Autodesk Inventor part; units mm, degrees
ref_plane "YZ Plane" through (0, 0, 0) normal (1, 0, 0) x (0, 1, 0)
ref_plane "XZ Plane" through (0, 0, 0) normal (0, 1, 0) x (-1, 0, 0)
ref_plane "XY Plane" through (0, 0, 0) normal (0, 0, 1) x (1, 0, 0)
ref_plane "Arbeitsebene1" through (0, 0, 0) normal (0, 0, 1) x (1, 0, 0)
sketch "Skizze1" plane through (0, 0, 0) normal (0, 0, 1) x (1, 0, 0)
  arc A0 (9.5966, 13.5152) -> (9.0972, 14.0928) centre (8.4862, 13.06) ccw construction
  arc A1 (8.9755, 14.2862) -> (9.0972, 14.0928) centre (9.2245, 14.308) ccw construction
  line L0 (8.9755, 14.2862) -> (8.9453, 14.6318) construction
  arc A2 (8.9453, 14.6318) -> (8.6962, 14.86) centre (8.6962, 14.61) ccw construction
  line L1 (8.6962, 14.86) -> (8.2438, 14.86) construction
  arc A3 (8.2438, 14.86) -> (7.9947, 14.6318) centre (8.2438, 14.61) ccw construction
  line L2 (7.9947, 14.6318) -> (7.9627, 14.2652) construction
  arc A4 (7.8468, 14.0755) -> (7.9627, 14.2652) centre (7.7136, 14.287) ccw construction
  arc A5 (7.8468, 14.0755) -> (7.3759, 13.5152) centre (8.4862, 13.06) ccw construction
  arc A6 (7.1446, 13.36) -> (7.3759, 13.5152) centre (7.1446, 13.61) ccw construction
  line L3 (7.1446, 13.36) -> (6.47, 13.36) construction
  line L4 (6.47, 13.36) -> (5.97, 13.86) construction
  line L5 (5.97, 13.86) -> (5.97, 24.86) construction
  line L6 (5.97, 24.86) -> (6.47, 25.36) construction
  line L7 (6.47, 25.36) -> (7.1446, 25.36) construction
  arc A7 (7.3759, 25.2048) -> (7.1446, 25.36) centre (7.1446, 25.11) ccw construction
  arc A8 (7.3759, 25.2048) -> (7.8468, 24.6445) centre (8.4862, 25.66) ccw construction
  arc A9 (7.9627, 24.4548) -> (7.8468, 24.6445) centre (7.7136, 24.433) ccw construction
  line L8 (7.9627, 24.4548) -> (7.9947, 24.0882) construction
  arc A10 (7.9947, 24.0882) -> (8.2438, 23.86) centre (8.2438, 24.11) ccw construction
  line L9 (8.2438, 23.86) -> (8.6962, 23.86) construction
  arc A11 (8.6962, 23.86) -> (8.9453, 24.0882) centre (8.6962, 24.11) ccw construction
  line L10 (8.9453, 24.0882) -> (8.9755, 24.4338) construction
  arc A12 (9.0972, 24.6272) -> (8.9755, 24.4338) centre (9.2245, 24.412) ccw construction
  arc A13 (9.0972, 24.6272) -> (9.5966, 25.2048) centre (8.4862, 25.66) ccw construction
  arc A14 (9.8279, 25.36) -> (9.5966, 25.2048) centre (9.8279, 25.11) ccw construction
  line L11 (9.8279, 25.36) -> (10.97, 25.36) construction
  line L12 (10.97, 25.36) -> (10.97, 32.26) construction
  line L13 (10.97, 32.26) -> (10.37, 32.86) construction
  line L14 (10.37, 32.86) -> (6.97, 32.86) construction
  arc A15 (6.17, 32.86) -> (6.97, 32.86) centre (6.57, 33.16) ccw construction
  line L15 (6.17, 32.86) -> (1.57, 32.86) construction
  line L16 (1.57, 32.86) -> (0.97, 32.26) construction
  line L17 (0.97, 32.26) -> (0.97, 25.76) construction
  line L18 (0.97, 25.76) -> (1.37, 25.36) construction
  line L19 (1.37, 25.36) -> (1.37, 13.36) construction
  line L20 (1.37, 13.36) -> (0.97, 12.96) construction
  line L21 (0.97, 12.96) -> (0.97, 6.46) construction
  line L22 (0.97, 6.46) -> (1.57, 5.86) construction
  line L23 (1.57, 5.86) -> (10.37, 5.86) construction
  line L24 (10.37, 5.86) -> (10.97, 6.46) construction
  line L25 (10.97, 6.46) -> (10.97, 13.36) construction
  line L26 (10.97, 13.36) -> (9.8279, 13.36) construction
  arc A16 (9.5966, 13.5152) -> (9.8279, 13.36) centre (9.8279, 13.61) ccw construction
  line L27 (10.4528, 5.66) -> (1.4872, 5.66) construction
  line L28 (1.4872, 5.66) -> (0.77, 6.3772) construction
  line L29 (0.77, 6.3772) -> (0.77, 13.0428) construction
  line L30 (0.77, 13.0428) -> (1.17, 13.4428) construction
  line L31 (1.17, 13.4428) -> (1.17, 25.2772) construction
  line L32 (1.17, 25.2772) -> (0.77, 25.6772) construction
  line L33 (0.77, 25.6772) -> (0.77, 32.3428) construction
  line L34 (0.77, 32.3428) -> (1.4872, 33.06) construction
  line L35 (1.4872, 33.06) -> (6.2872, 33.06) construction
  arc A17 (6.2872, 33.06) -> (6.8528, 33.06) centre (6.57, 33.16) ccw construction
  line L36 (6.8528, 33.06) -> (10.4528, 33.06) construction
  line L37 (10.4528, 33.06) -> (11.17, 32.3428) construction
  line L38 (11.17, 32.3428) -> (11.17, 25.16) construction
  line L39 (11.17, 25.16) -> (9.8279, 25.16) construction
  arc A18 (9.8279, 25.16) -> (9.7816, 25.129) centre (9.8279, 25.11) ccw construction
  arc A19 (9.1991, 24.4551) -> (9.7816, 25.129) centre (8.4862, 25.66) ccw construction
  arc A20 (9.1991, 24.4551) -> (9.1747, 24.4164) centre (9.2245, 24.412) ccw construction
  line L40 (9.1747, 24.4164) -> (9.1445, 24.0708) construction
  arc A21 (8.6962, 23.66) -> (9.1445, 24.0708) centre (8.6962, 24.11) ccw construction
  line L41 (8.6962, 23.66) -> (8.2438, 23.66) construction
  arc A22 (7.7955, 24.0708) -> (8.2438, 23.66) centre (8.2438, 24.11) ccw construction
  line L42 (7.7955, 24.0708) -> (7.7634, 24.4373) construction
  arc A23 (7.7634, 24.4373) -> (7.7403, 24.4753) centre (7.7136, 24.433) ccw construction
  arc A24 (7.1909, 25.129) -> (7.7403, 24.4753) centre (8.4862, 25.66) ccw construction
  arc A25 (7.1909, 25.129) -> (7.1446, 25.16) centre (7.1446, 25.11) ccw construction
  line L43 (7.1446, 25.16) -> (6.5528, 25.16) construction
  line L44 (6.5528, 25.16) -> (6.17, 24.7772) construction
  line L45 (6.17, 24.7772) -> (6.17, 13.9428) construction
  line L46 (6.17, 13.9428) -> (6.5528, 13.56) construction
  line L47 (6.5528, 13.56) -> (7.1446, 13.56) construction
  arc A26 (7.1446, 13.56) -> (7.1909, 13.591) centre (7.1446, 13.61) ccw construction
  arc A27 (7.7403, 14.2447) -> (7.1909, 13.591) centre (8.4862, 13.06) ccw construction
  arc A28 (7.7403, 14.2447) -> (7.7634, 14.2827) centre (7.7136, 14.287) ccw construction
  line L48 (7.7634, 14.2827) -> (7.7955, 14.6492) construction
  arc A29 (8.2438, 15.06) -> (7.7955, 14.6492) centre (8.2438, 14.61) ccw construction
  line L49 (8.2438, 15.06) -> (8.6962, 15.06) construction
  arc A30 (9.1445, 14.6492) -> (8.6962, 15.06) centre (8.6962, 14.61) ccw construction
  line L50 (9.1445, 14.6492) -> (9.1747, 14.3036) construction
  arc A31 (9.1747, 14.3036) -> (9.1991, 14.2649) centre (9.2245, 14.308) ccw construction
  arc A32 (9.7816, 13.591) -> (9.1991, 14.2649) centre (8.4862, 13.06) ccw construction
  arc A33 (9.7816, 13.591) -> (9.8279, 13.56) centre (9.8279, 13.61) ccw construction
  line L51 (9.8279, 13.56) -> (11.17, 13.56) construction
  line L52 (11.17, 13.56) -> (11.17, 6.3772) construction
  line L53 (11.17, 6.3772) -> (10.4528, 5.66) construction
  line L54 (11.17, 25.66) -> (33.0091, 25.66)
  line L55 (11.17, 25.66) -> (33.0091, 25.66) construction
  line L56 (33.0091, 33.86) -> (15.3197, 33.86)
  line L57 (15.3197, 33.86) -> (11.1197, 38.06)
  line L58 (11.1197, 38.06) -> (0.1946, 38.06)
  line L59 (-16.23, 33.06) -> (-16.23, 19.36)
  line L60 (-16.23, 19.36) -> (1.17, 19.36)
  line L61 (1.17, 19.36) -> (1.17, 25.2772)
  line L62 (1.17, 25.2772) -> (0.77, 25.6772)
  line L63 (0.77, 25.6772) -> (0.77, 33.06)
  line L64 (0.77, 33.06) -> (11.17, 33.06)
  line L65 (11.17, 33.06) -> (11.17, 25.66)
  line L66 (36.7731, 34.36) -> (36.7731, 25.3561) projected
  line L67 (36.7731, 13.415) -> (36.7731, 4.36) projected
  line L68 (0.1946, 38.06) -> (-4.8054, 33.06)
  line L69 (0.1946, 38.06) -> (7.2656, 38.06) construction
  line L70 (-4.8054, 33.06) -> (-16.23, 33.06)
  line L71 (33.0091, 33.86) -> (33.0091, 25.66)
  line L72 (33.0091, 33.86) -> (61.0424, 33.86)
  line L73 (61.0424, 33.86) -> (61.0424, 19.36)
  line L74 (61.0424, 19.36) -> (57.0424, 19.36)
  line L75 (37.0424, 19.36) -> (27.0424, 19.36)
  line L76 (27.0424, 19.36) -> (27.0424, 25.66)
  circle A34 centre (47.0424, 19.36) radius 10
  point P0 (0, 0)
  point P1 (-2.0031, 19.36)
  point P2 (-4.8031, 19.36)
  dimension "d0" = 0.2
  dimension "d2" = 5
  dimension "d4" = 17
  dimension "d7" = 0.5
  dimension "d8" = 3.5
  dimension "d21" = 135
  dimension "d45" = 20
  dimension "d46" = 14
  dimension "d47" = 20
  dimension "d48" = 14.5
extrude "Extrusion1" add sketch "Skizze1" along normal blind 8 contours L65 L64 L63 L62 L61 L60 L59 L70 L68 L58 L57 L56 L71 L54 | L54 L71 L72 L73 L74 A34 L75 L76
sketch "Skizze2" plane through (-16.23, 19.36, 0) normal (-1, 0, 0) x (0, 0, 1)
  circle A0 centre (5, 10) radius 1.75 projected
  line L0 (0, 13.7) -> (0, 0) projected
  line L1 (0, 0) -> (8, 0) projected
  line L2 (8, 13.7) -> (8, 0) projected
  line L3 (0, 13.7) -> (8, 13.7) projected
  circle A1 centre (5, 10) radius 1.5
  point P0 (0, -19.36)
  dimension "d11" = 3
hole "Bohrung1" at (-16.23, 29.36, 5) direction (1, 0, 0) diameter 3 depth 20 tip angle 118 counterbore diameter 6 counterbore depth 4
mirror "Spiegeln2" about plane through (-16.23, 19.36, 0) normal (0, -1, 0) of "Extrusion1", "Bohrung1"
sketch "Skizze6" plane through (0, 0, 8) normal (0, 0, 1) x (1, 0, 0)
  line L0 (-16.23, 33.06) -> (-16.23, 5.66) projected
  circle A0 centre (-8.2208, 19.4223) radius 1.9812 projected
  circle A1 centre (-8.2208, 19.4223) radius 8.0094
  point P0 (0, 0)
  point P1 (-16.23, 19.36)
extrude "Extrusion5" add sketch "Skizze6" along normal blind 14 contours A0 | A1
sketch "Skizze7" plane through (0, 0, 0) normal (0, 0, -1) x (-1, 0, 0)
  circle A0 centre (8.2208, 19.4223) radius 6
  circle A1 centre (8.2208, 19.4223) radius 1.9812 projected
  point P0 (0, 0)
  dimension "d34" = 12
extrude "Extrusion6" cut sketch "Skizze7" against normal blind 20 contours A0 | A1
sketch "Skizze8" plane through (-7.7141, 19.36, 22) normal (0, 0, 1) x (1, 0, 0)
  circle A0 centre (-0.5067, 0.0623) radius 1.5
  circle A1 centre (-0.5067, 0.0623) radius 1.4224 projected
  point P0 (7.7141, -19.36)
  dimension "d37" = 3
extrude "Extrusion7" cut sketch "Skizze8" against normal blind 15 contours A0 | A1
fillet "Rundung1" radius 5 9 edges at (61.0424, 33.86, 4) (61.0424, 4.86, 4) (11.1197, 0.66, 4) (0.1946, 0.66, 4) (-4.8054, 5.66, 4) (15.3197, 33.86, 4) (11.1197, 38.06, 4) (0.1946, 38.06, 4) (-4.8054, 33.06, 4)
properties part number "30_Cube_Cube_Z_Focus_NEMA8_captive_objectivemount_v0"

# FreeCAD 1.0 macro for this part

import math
import FreeCAD as App
import Part
import Sketcher
from FreeCAD import Vector
Q = App.Units.Quantity


def edges_at(feature, points):
    """Names of the edges that pass closest to the given points."""
    edges = feature.Shape.Edges
    near = lambda p: min(range(len(edges)), key=lambda i: edges[i].distToShape(Part.Vertex(*p))[0])
    return sorted({f"Edge{near(p) + 1}" for p in points})

doc = App.newDocument("Part")
params = doc.addObject("Spreadsheet::Sheet", "Params")
for row, (alias, value) in enumerate([
    ("sketch1_radius", "10 mm"),
    ("sketch1_height", "14.5 mm"),
    ("sketch1_width", "17.4 mm"),
    ("sketch1_width2", "10.4 mm"),
    ("sketch1_height2", "7.4 mm"),
    ("pad1_length", "8 mm"),
    ("sketch2_diameter", "3 mm"),
    ("hole_diameter", "3 mm"),
    ("hole_depth", "20 mm"),
    ("hole_cbore_diameter", "6 mm"),
    ("hole_cbore_depth", "4 mm"),
    ("pad2_length", "14 mm"),
    ("sketch4_diameter", "12 mm"),
    ("pocket1_length", "20 mm"),
    ("sketch5_diameter", "3 mm"),
    ("pocket2_length", "15 mm"),
    ("fillet_radius", "5 mm"),
], start=1):
    params.set(f"A{row}", alias)
    params.set(f"B{row}", "=" + value)
    params.setAlias(f"B{row}", alias)

body = doc.addObject("PartDesign::Body", "Body")

sketch1 = body.newObject("Sketcher::SketchObject", "Sketch")
sketch1.AttachmentSupport = (doc.getObject("XY_Plane"), [""])
sketch1.MapMode = "FlatFace"
sketch1.addGeometry([
    Part.LineSegment(Vector(11.17, 33.06, 0), Vector(11.17, 25.66, 0)),
    Part.LineSegment(Vector(11.17, 25.66, 0), Vector(27.0424, 25.66, 0)),
    Part.LineSegment(Vector(27.0424, 25.66, 0), Vector(27.0424, 19.36, 0)),
    Part.LineSegment(Vector(27.0424, 19.36, 0), Vector(37.0424, 19.36, 0)),
    Part.ArcOfCircle(Part.Circle(Vector(47.0424, 19.36, 0), Vector(0, 0, 1), 10), math.radians(0), math.radians(180)),
    Part.LineSegment(Vector(57.0424, 19.36, 0), Vector(61.0424, 19.36, 0)),
    Part.LineSegment(Vector(61.0424, 19.36, 0), Vector(61.0424, 33.86, 0)),
    Part.LineSegment(Vector(61.0424, 33.86, 0), Vector(15.3197, 33.86, 0)),
    Part.LineSegment(Vector(15.3197, 33.86, 0), Vector(11.1197, 38.06, 0)),
    Part.LineSegment(Vector(11.1197, 38.06, 0), Vector(0.1946, 38.06, 0)),
    Part.LineSegment(Vector(0.1946, 38.06, 0), Vector(-4.8054, 33.06, 0)),
    Part.LineSegment(Vector(-4.8054, 33.06, 0), Vector(-16.23, 33.06, 0)),
    Part.LineSegment(Vector(-16.23, 33.06, 0), Vector(-16.23, 19.36, 0)),
    Part.LineSegment(Vector(-16.23, 19.36, 0), Vector(1.17, 19.36, 0)),
    Part.LineSegment(Vector(1.17, 19.36, 0), Vector(1.17, 25.2772, 0)),
    Part.LineSegment(Vector(1.17, 25.2772, 0), Vector(0.77, 25.6772, 0)),
    Part.LineSegment(Vector(0.77, 25.6772, 0), Vector(0.77, 33.06, 0)),
    Part.LineSegment(Vector(0.77, 33.06, 0), Vector(11.17, 33.06, 0)),
], False)
sketch1.addConstraint([
    Sketcher.Constraint("Coincident", 0, 2, 1, 1),
    Sketcher.Constraint("Coincident", 1, 2, 2, 1),
    Sketcher.Constraint("Coincident", 2, 2, 3, 1),
    Sketcher.Constraint("Coincident", 3, 2, 4, 2),
    Sketcher.Constraint("Coincident", 4, 1, 5, 1),
    Sketcher.Constraint("Coincident", 5, 2, 6, 1),
    Sketcher.Constraint("Coincident", 6, 2, 7, 1),
    Sketcher.Constraint("Coincident", 7, 2, 8, 1),
    Sketcher.Constraint("Coincident", 8, 2, 9, 1),
    Sketcher.Constraint("Coincident", 9, 2, 10, 1),
    Sketcher.Constraint("Coincident", 10, 2, 11, 1),
    Sketcher.Constraint("Coincident", 11, 2, 12, 1),
    Sketcher.Constraint("Coincident", 12, 2, 13, 1),
    Sketcher.Constraint("Coincident", 13, 2, 14, 1),
    Sketcher.Constraint("Coincident", 14, 2, 15, 1),
    Sketcher.Constraint("Coincident", 15, 2, 16, 1),
    Sketcher.Constraint("Coincident", 16, 2, 17, 1),
    Sketcher.Constraint("Coincident", 17, 2, 0, 1),
    Sketcher.Constraint("Vertical", 0),
    Sketcher.Constraint("Horizontal", 1),
    Sketcher.Constraint("Vertical", 2),
    Sketcher.Constraint("Horizontal", 3),
    Sketcher.Constraint("Horizontal", 5),
    Sketcher.Constraint("Vertical", 6),
    Sketcher.Constraint("Horizontal", 7),
    Sketcher.Constraint("Horizontal", 9),
    Sketcher.Constraint("Horizontal", 11),
    Sketcher.Constraint("Vertical", 12),
    Sketcher.Constraint("Horizontal", 13),
    Sketcher.Constraint("Vertical", 14),
    Sketcher.Constraint("Vertical", 16),
    Sketcher.Constraint("Horizontal", 17),
    Sketcher.Constraint("Perpendicular", 8, 10),
    Sketcher.Constraint("Perpendicular", 10, 15),
    Sketcher.Constraint("Horizontal", 4, 3, 2, 2),
    Sketcher.Constraint("Horizontal", 3, 2, 4, 1),
    Sketcher.Constraint("Horizontal", 5, 2, 12, 2),
    Sketcher.Constraint("Horizontal", 11, 2, 16, 2),
    Sketcher.Constraint("Radius", 4, 10.0),
    Sketcher.Constraint("Angle", 8, Q("135 deg")),
    Sketcher.Constraint("DistanceY", 6, 1, 6, 2, 14.5),
    Sketcher.Constraint("DistanceX", 1, 2, 4, 3, 20.0),
    Sketcher.Constraint("DistanceX", 4, 3, 5, 2, 14.0),
    Sketcher.Constraint("DistanceX", 10, 2, 9, 2, 5.0),
    Sketcher.Constraint("DistanceX", 13, 1, 13, 2, 17.4),
    Sketcher.Constraint("DistanceX", 17, 1, 17, 2, 10.4),
    Sketcher.Constraint("DistanceY", 0, 2, 0, 1, 7.4),
    Sketcher.Constraint("DistanceY", 2, 2, 2, 1, 6.3),
    Sketcher.Constraint("DistanceX", 13, 2, 0, 2, 10.0),
    Sketcher.Constraint("DistanceX", 9, 2, 9, 1, 10.925),
    Sketcher.Constraint("DistanceY", -1, 1, 4, 3, 19.36),
    Sketcher.Constraint("DistanceX", -1, 1, 0, 2, 11.17),
    Sketcher.Constraint("DistanceX", 1, 1, 1, 2, 15.8724),
    Sketcher.Constraint("DistanceX", 7, 2, 7, 1, 45.7227),
    Sketcher.Constraint("DistanceY", 14, 1, 14, 2, 5.9172),
])
sketch1.setExpression("Constraints[38]", "Params.sketch1_radius")
sketch1.setExpression("Constraints[40]", "Params.sketch1_height")
sketch1.setExpression("Constraints[44]", "Params.sketch1_width")
sketch1.setExpression("Constraints[45]", "Params.sketch1_width2")
sketch1.setExpression("Constraints[46]", "Params.sketch1_height2")
pad1 = body.newObject("PartDesign::Pad", "Pad")
pad1.Profile = sketch1
pad1.setExpression("Length", "Params.pad1_length")

sketch2 = body.newObject("Sketcher::SketchObject", "Sketch001")
sketch2.AttachmentSupport = (doc.getObject("YZ_Plane"), [""])
sketch2.MapMode = "FlatFace"
sketch2.AttachmentOffset = App.Placement(Vector(0, 0, -16.23), App.Rotation())
sketch2.addGeometry(Part.Circle(Vector(29.36, 5, 0), Vector(0, 0, 1), 1.5), False)
sketch2.addConstraint([
    Sketcher.Constraint("Diameter", 0, 3.0),
    Sketcher.Constraint("DistanceY", -1, 1, 0, 3, 5.0),
    Sketcher.Constraint("DistanceX", -1, 1, 0, 3, 29.36),
])
sketch2.setExpression("Constraints[0]", "Params.sketch2_diameter")
doc.recompute()
hole = body.newObject("PartDesign::Hole", "Hole")
hole.Profile = sketch2
hole.ThreadType = "None"
hole.setExpression("Diameter", "Params.hole_diameter")
hole.DepthType = "Dimension"
hole.setExpression("Depth", "Params.hole_depth")
hole.DrillPoint = "Angled"
hole.DrillPointAngle = 118
hole.HoleCutType = "Counterbore"
hole.setExpression("HoleCutDiameter", "Params.hole_cbore_diameter")
hole.setExpression("HoleCutDepth", "Params.hole_cbore_depth")
hole.Reversed = True
doc.recompute()

datumplane = body.newObject("PartDesign::Plane", "DatumPlane")
datumplane.AttachmentSupport = (doc.getObject("XZ_Plane"), [""])
datumplane.MapMode = "FlatFace"
datumplane.AttachmentOffset = App.Placement(Vector(0, 0, -19.36), App.Rotation())
mirrored = body.newObject("PartDesign::Mirrored", "Mirrored")
mirrored.Originals = [pad1, hole]
mirrored.MirrorPlane = (datumplane, [""])
body.Tip = mirrored

sketch3 = body.newObject("Sketcher::SketchObject", "Sketch002")
sketch3.AttachmentSupport = (doc.getObject("XY_Plane"), [""])
sketch3.MapMode = "FlatFace"
sketch3.AttachmentOffset = App.Placement(Vector(0, 0, 8), App.Rotation())
sketch3.addGeometry(Part.Circle(Vector(-8.2208, 19.4223, 0), Vector(0, 0, 1), 8.0094), False)
sketch3.addConstraint([
    Sketcher.Constraint("Diameter", 0, 16.0188),
    Sketcher.Constraint("DistanceX", 0, 3, -1, 1, 8.2208),
    Sketcher.Constraint("DistanceY", -1, 1, 0, 3, 19.4223),
])
pad2 = body.newObject("PartDesign::Pad", "Pad001")
pad2.Profile = sketch3
pad2.setExpression("Length", "Params.pad2_length")

sketch4 = body.newObject("Sketcher::SketchObject", "Sketch003")
sketch4.AttachmentSupport = (doc.getObject("XY_Plane"), [""])
sketch4.MapMode = "FlatFace"
sketch4.addGeometry(Part.Circle(Vector(-8.2208, 19.4223, 0), Vector(0, 0, 1), 6), False)
sketch4.addConstraint([
    Sketcher.Constraint("Diameter", 0, 12.0),
    Sketcher.Constraint("DistanceX", 0, 3, -1, 1, 8.2208),
    Sketcher.Constraint("DistanceY", -1, 1, 0, 3, 19.4223),
])
sketch4.setExpression("Constraints[0]", "Params.sketch4_diameter")
pocket1 = body.newObject("PartDesign::Pocket", "Pocket")
pocket1.Profile = sketch4
pocket1.setExpression("Length", "Params.pocket1_length")
pocket1.Reversed = True

sketch5 = body.newObject("Sketcher::SketchObject", "Sketch004")
sketch5.AttachmentSupport = (doc.getObject("XY_Plane"), [""])
sketch5.MapMode = "FlatFace"
sketch5.AttachmentOffset = App.Placement(Vector(0, 0, 22), App.Rotation())
sketch5.addGeometry(Part.Circle(Vector(-8.2208, 19.4223, 0), Vector(0, 0, 1), 1.5), False)
sketch5.addConstraint([
    Sketcher.Constraint("Diameter", 0, 3.0),
    Sketcher.Constraint("DistanceX", 0, 3, -1, 1, 8.2208),
    Sketcher.Constraint("DistanceY", -1, 1, 0, 3, 19.4223),
])
sketch5.setExpression("Constraints[0]", "Params.sketch5_diameter")
pocket2 = body.newObject("PartDesign::Pocket", "Pocket001")
pocket2.Profile = sketch5
pocket2.setExpression("Length", "Params.pocket2_length")
doc.recompute()

fillet = body.newObject("PartDesign::Fillet", "Fillet")
fillet.Base = (pocket2, edges_at(pocket2, [
    (61.042, 33.86, 4),
    (61.042, 4.86, 4),
    (11.12, 0.66, 4),
    (0.195, 0.66, 4),
    (-4.805, 5.66, 4),
    (15.32, 33.86, 4),
    (11.12, 38.06, 4),
    (0.195, 38.06, 4),
    (-4.805, 33.06, 4),
]))
fillet.setExpression("Radius", "Params.fillet_radius")

doc.recompute()
